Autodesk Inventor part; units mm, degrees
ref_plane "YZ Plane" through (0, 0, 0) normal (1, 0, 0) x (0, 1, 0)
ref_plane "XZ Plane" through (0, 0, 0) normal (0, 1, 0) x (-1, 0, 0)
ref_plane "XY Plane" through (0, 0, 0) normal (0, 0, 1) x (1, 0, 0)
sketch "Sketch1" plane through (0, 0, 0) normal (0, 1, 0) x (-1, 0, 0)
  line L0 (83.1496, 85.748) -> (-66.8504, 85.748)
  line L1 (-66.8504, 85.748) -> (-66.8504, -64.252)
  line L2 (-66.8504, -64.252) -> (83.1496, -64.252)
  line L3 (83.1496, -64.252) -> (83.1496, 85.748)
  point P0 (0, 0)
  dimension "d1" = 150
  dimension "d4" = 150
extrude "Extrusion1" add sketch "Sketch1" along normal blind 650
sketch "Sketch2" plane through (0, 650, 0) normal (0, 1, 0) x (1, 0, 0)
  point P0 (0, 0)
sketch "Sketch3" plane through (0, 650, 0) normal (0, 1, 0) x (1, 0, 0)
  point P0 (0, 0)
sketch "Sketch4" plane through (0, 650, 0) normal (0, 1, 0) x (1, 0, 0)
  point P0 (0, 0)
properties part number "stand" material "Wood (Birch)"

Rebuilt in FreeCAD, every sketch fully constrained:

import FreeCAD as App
import Part
import Sketcher
Q = App.Units.Quantity


def add_polygon(sketch, points):
    """Adds a closed chain of lines whose ends are joined by coincident constraints."""
    first, n = sketch.GeometryCount, len(points)
    for a, b in zip(points, points[1:] + points[:1]):
        sketch.addGeometry(Part.LineSegment(App.Vector(*a, 0), App.Vector(*b, 0)), False)
    for i in range(n):
        sketch.addConstraint(Sketcher.Constraint("Coincident", first + i, 2, first + (i + 1) % n, 1))

doc = App.newDocument("Part")
body = doc.addObject("PartDesign::Body", "Body")

# Sketch on XZ plane
sketch1 = doc.addObject("Sketcher::SketchObject", "Sketch")
body.addObject(sketch1)
sketch1.AttachmentSupport = (doc.XZ_Plane, [""])
sketch1.MapMode = "FlatFace"
add_polygon(sketch1, [(-83, -64), (-83, 86), (67, 86), (67, -64)])  # lines 0-3
sketch1.addConstraint(Sketcher.Constraint("Vertical", 0))
sketch1.addConstraint(Sketcher.Constraint("Horizontal", 1))
sketch1.addConstraint(Sketcher.Constraint("Vertical", 2))
sketch1.addConstraint(Sketcher.Constraint("Horizontal", 3))
sketch1.addConstraint(Sketcher.Constraint("Equal", 3, 0))
sketch1.addConstraint(Sketcher.Constraint("DistanceX", 1, 1, 1, 2, Q("150 mm")))
sketch1.addConstraint(Sketcher.Constraint("DistanceY", -1, 1, 0, 2, Q("85.748 mm")))
sketch1.addConstraint(Sketcher.Constraint("DistanceX", 0, 2, -1, 1, Q("83.1496 mm")))
pad1 = doc.addObject("PartDesign::Pad", "Pad")
body.addObject(pad1)
pad1.Profile = sketch1
pad1.Length = 650
pad1.Reversed = True

doc.recompute()
